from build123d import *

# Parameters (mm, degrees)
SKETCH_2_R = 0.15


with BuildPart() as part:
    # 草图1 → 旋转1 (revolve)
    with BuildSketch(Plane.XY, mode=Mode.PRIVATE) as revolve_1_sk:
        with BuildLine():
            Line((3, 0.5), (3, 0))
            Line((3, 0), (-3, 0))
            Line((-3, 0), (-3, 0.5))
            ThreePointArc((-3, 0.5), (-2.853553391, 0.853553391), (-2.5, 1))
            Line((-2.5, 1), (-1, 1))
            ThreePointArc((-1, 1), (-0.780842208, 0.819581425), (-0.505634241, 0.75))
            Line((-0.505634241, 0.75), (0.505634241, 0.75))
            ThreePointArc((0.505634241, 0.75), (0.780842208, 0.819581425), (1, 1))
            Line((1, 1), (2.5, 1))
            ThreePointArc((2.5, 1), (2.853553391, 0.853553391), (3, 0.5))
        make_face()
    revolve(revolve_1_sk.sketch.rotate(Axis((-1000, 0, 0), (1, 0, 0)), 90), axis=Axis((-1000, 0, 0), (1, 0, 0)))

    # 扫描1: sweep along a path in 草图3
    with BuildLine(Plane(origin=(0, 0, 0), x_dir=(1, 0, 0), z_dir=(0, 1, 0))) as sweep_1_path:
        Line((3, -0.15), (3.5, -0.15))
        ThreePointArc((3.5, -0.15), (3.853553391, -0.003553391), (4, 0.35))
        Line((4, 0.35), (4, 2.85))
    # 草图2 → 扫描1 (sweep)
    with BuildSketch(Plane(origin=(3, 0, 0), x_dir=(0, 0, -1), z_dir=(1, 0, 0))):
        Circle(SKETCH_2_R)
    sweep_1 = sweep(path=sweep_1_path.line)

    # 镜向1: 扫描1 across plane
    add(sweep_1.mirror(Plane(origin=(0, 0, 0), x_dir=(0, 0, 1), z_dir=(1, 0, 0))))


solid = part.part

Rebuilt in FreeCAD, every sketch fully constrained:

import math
import FreeCAD as App
import Part
import Sketcher

V = App.Vector
Q = App.Units.Quantity

doc = App.newDocument("Part")
body = doc.addObject("PartDesign::Body", "Body")

# Sketch on XY plane
sketch1 = body.newObject("Sketcher::SketchObject", "Sketch")
sketch1.AttachmentSupport = (doc.getObject("XY_Plane"), [""])
sketch1.MapMode = "FlatFace"
sketch1.addGeometry([
    Part.LineSegment(V(3, 0, 0), V(3, 0.5, 0)),  # 0
    Part.ArcOfCircle(Part.Circle(V(2.5, 0.5, 0), V(0, 0, 1), 0.5), math.radians(0), math.radians(90)),  # 1
    Part.LineSegment(V(2.5, 1, 0), V(1, 1, 0)),  # 2
    Part.ArcOfCircle(Part.Circle(V(0.488062, 1.398544, 0), V(0, 0, 1), 0.648782), math.radians(-88.447919), math.radians(-37.900774)),  # 3
    Part.LineSegment(V(0.505634, 0.75, 0), V(-0.505634, 0.75, 0)),  # 4
    Part.ArcOfCircle(Part.Circle(V(-0.488062, 1.398544, 0), V(0, 0, 1), 0.648782), math.radians(-142.099226), math.radians(-91.552081)),  # 5
    Part.LineSegment(V(-1, 1, 0), V(-2.5, 1, 0)),  # 6
    Part.ArcOfCircle(Part.Circle(V(-2.5, 0.5, 0), V(0, 0, 1), 0.5), math.radians(90), math.radians(180)),  # 7
    Part.LineSegment(V(-3, 0.5, 0), V(-3, 0, 0)),  # 8
    Part.LineSegment(V(-3, 0, 0), V(3, 0, 0)),  # 9
], False)
sketch1.addConstraint([
    Sketcher.Constraint("Tangent", 0, 2, 1, 1),
    Sketcher.Constraint("Tangent", 1, 2, 2, 1),
    Sketcher.Constraint("Coincident", 2, 2, 3, 2),
    Sketcher.Constraint("Coincident", 3, 1, 4, 1),
    Sketcher.Constraint("Coincident", 4, 2, 5, 2),
    Sketcher.Constraint("Coincident", 5, 1, 6, 1),
    Sketcher.Constraint("Tangent", 6, 2, 7, 1),
    Sketcher.Constraint("Tangent", 7, 2, 8, 1),
    Sketcher.Constraint("Coincident", 8, 2, 9, 1),
    Sketcher.Constraint("Coincident", 9, 2, 0, 1),
    Sketcher.Constraint("Vertical", 0),
    Sketcher.Constraint("Horizontal", 2),
    Sketcher.Constraint("Horizontal", 4),
    Sketcher.Constraint("Horizontal", 6),
    Sketcher.Constraint("Vertical", 8),
    Sketcher.Constraint("Horizontal", 9),
    Sketcher.Constraint("Equal", 3, 5),
    Sketcher.Constraint("Equal", 1, 7),
    Sketcher.Constraint("Symmetric", 8, 2, 9, 2, -1, 1),
    Sketcher.Constraint("Symmetric", 3, 3, 5, 3, -2),
    Sketcher.Constraint("Horizontal", 1, 3, 7, 3),
    Sketcher.Constraint("Radius", 1, Q("0.5 mm")),
    Sketcher.Constraint("DistanceX", 9, 1, 9, 2, Q("6 mm")),
    Sketcher.Constraint("DistanceX", 2, 2, 2, 1, Q("1.5 mm")),
    Sketcher.Constraint("DistanceY", 0, 1, 0, 2, Q("0.5 mm")),
    Sketcher.Constraint("DistanceY", -1, 1, 3, 1, Q("0.75 mm")),
    Sketcher.Constraint("Radius", 3, Q("0.648782 mm")),
    Sketcher.Constraint("DistanceX", 4, 2, 4, 1, Q("1.011268 mm")),
])
revolution = body.newObject("PartDesign::Revolution", "Revolution")
revolution.Profile = sketch1
revolution.ReferenceAxis = (sketch1, ["H_Axis"])
revolution.Angle = 360

# Sketch on YZ plane
sketch2 = body.newObject("Sketcher::SketchObject", "Sketch001")
sketch2.AttachmentSupport = (doc.getObject("YZ_Plane"), [""])
sketch2.MapMode = "FlatFace"
sketch2.AttachmentOffset = App.Placement(V(0, 0, 3), App.Rotation())
sketch2.addGeometry(Part.Circle(V(0, 0, 0), V(0, 0, 1), 0.15), False)
sketch2.addConstraint([
    Sketcher.Constraint("Coincident", 0, 3, -1, 1),
    Sketcher.Constraint("Diameter", 0, Q("0.3 mm")),
])

# Sketch on XZ plane
sketch3 = body.newObject("Sketcher::SketchObject", "Sketch002")
sketch3.AttachmentSupport = (doc.getObject("XZ_Plane"), [""])
sketch3.MapMode = "FlatFace"
sketch3.addGeometry([
    Part.LineSegment(V(3, 0.15, 0), V(3.5, 0.15, 0)),
    Part.ArcOfCircle(Part.Circle(V(3.5, -0.35, 0), V(0, 0, 1), 0.5), math.radians(0), math.radians(90)),
    Part.LineSegment(V(4, -0.35, 0), V(4, -2.85, 0)),
], False)
sketch3.addConstraint([
    Sketcher.Constraint("Tangent", 0, 2, 1, 2),
    Sketcher.Constraint("Tangent", 1, 1, 2, 1),
    Sketcher.Constraint("Horizontal", 0),
    Sketcher.Constraint("Vertical", 2),
    Sketcher.Constraint("Radius", 1, Q("0.5 mm")),
    Sketcher.Constraint("DistanceX", 0, 1, 0, 2, Q("0.5 mm")),
    Sketcher.Constraint("DistanceY", 2, 2, 2, 1, Q("2.5 mm")),
    Sketcher.Constraint("DistanceX", -1, 1, 0, 1, Q("3 mm")),
    Sketcher.Constraint("DistanceY", 1, 3, -1, 1, Q("0.35 mm")),
])
doc.recompute()

additivepipe = body.newObject("PartDesign::AdditivePipe", "AdditivePipe")
additivepipe.Profile = sketch2
additivepipe.Spine = (sketch3, ["Edge1", "Edge2", "Edge3"])
doc.recompute()

mirrored = body.newObject("PartDesign::Mirrored", "Mirrored")
mirrored.Originals = [additivepipe]
mirrored.MirrorPlane = (doc.getObject("YZ_Plane"), [""])
body.Tip = mirrored

doc.recompute()
